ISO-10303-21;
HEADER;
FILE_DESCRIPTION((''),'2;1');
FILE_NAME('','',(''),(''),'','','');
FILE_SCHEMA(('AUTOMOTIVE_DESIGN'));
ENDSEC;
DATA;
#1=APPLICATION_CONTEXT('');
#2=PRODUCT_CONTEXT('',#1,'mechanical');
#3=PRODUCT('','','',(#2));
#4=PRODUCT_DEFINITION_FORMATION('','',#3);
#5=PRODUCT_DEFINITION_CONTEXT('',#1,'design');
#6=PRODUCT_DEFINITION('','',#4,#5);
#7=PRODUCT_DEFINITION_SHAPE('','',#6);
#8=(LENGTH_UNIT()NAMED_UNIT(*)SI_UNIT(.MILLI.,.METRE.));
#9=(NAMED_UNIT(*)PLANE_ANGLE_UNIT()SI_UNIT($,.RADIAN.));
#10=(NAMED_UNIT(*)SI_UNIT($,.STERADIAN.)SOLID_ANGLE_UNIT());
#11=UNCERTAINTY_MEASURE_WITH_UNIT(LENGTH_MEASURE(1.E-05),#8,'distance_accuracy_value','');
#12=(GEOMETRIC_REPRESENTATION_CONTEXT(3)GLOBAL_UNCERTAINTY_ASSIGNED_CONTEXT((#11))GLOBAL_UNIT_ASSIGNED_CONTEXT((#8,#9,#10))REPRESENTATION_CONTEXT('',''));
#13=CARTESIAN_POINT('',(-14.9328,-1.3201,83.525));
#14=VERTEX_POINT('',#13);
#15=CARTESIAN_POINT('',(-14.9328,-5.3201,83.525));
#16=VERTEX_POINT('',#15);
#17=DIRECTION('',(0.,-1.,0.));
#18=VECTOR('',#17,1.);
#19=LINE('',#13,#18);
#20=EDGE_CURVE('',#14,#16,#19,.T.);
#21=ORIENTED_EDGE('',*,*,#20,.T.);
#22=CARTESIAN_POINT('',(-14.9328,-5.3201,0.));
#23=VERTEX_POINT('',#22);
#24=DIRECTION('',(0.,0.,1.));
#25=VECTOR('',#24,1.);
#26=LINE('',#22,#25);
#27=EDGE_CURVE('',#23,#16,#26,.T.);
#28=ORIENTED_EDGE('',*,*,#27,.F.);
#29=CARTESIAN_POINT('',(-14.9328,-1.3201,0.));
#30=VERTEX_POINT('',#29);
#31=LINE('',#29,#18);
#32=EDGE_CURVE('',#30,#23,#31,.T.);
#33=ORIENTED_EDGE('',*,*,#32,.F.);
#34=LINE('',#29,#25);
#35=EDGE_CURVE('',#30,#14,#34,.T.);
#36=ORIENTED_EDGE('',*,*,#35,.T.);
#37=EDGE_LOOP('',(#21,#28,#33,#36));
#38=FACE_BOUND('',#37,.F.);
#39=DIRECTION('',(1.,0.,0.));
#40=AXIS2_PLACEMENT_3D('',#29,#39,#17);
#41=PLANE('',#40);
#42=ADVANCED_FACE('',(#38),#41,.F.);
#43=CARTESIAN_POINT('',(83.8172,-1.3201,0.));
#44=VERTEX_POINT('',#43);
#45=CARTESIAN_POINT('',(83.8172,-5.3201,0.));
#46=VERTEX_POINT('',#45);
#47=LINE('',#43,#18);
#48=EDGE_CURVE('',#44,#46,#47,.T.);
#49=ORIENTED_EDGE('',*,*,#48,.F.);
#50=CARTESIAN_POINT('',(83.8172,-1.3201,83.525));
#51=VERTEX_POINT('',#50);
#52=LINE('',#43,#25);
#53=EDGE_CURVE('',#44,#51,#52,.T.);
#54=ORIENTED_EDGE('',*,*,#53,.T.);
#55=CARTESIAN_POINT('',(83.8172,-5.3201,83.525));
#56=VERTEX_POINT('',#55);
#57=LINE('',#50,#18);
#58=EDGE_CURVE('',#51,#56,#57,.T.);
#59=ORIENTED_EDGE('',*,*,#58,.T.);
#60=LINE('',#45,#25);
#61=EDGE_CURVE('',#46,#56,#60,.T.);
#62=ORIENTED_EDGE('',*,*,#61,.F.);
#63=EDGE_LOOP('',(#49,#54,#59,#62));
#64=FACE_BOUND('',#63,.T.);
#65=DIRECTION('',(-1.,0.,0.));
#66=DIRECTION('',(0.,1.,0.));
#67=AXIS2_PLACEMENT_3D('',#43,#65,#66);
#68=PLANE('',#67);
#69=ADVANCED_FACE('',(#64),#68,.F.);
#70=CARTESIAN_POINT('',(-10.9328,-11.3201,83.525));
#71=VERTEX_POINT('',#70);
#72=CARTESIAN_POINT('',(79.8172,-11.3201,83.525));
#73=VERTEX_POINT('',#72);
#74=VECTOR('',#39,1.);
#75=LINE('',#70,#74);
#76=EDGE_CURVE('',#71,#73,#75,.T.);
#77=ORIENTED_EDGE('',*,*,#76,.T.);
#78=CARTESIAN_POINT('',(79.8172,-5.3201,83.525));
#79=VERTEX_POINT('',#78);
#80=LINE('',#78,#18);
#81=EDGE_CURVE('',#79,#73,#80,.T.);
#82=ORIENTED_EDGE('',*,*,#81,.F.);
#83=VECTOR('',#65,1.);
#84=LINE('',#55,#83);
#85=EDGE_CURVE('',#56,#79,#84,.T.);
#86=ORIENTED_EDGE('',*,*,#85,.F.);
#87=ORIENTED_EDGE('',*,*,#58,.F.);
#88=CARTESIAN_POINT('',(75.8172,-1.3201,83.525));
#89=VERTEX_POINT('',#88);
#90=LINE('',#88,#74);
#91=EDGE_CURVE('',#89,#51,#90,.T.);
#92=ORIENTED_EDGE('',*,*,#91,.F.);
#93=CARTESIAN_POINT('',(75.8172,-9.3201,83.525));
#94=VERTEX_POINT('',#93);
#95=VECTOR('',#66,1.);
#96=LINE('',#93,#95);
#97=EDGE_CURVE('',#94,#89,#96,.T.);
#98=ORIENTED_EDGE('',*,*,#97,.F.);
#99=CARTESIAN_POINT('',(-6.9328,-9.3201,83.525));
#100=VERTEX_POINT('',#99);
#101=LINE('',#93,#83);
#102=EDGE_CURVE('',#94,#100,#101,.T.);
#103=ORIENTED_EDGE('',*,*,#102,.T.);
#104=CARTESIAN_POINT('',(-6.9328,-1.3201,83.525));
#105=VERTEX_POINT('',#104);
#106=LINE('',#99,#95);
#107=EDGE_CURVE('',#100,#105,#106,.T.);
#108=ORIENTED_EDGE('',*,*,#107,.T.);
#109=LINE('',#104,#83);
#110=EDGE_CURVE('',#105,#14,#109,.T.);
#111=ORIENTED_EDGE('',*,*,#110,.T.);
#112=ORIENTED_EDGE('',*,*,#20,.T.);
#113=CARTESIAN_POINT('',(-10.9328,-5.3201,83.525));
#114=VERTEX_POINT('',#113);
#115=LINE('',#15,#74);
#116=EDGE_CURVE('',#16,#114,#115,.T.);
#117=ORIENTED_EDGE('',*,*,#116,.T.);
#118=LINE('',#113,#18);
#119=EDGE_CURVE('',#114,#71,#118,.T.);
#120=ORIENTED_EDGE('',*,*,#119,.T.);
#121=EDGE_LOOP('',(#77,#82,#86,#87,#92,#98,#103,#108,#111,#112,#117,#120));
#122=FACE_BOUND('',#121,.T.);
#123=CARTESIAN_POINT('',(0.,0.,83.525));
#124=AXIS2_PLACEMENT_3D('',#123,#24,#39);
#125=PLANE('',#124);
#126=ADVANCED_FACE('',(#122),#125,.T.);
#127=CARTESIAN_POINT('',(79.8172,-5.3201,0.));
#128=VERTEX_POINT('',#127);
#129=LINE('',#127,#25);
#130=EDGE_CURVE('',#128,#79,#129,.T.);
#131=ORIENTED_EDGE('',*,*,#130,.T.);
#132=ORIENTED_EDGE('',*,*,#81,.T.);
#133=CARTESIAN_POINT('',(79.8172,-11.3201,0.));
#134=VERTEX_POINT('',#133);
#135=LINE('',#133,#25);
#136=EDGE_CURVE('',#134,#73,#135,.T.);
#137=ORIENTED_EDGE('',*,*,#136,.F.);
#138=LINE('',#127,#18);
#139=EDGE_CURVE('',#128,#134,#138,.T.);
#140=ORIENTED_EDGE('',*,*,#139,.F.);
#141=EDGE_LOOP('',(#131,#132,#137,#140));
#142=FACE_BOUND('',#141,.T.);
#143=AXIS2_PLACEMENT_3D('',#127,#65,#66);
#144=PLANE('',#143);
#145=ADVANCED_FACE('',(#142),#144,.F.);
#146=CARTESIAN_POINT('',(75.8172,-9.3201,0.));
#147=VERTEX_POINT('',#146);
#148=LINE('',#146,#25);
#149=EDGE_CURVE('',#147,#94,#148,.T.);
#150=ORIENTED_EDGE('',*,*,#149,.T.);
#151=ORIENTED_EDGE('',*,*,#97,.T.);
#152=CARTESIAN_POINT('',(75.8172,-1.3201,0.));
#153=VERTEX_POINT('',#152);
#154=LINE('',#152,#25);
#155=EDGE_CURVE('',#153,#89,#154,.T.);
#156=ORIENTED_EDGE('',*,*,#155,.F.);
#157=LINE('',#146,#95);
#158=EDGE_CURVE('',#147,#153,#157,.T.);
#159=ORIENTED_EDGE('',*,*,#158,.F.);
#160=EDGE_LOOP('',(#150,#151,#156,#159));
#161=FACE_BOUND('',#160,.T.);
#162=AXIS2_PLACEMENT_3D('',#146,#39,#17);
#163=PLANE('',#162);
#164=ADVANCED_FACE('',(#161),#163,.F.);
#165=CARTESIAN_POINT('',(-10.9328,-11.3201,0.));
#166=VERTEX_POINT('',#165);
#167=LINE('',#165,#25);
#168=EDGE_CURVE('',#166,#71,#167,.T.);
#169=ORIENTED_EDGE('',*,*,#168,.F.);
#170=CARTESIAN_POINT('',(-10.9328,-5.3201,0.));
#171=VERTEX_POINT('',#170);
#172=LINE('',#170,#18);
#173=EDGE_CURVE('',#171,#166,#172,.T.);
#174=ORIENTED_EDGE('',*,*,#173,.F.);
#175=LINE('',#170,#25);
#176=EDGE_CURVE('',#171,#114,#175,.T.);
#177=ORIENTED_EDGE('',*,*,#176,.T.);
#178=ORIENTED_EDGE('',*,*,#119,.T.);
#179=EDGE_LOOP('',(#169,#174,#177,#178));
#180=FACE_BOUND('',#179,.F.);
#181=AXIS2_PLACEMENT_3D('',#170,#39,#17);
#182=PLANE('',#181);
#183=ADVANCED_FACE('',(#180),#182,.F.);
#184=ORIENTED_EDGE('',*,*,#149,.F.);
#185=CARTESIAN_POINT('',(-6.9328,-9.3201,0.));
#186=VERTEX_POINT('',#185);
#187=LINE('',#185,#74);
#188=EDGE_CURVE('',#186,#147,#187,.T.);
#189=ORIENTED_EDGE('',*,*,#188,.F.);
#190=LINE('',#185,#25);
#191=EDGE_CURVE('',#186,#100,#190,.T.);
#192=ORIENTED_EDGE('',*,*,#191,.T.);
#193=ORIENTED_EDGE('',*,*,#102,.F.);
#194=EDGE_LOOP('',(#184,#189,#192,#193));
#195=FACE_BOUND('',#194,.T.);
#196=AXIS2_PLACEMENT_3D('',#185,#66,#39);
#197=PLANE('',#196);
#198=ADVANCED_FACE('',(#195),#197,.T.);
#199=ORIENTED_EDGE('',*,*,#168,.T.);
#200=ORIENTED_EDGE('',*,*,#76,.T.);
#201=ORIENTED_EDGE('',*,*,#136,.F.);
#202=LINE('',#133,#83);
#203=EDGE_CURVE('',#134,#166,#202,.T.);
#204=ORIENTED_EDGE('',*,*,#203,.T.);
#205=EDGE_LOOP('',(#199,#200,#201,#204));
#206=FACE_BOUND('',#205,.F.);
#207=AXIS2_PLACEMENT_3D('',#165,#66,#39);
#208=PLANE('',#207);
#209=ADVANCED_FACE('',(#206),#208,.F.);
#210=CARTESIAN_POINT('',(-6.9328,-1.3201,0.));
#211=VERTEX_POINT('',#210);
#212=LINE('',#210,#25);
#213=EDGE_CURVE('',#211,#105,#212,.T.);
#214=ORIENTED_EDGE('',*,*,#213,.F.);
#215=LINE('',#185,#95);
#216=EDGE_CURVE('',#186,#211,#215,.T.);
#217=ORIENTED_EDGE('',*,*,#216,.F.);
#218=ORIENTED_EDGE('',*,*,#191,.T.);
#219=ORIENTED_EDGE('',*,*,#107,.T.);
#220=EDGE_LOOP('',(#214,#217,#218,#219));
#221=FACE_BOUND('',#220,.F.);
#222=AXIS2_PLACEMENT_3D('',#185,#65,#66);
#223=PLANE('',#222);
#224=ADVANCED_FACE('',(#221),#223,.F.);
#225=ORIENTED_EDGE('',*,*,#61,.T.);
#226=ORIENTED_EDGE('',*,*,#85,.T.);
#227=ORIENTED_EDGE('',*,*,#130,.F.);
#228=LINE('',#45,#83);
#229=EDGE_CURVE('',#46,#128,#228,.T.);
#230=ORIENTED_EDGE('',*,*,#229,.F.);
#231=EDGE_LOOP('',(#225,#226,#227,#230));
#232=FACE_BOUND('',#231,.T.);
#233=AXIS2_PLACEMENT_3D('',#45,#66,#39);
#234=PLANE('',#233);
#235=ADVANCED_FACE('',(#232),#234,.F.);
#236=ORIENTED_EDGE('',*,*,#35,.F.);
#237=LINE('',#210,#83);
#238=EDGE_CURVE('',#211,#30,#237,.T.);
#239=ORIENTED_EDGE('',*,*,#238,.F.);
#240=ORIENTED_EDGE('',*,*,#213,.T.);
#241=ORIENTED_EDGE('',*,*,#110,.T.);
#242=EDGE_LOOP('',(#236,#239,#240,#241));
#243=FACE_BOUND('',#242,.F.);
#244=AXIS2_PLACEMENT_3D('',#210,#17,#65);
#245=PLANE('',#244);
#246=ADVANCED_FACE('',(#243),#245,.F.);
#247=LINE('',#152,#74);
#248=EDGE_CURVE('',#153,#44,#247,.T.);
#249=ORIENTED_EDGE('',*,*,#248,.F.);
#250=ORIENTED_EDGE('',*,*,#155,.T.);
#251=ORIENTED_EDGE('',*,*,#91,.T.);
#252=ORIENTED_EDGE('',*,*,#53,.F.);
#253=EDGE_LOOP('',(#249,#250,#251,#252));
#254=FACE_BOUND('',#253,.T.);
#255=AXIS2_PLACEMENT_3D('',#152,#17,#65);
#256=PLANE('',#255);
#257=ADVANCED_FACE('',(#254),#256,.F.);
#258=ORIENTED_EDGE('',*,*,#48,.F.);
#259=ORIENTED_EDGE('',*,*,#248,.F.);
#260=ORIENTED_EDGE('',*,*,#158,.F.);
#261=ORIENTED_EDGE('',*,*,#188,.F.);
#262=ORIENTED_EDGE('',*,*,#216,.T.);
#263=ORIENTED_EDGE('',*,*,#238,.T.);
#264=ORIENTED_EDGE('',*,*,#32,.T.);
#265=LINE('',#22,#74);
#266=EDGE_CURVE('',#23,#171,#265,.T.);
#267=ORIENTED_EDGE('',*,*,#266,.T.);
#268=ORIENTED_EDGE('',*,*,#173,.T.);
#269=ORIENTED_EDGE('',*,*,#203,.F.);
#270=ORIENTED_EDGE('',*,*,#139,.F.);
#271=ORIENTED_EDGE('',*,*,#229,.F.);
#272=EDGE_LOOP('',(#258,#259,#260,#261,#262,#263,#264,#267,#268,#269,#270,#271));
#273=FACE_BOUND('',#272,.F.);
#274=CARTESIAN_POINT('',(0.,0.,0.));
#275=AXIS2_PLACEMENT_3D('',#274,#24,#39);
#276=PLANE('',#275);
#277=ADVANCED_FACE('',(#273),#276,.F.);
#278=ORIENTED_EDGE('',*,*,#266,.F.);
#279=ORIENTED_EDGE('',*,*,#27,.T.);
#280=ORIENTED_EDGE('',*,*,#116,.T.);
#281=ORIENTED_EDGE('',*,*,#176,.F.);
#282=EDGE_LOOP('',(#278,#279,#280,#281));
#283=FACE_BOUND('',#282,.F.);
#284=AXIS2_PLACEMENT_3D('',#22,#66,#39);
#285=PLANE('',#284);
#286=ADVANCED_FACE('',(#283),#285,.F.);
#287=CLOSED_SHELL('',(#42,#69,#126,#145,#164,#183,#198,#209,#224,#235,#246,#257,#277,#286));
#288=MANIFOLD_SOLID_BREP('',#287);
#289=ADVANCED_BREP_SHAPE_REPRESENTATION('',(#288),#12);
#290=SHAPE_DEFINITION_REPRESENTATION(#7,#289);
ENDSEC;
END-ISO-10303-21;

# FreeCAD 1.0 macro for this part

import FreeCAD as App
import Part
import Sketcher
from FreeCAD import Vector


def add_polygon(sketch, points):
    """Adds a closed chain of lines whose ends are joined by coincident constraints."""
    first, n = sketch.GeometryCount, len(points)
    for a, b in zip(points, points[1:] + points[:1]):
        sketch.addGeometry(Part.LineSegment(App.Vector(*a, 0), App.Vector(*b, 0)), False)
    for i in range(n):
        sketch.addConstraint(Sketcher.Constraint("Coincident", first + i, 2, first + (i + 1) % n, 1))

doc = App.newDocument("Part")
body = doc.addObject("PartDesign::Body", "Body")

# Sketch on XY plane
sketch1 = body.newObject("Sketcher::SketchObject", "Sketch")
sketch1.AttachmentSupport = (doc.getObject("XY_Plane"), [""])
sketch1.MapMode = "FlatFace"
add_polygon(sketch1, [(-14.9, -1.3), (-14.9, -5.3), (-10.9, -5.3), (-10.9, -11.3), (34.4, -11.3), (34.4, -9.3), (-6.9, -9.3), (-6.9, -1.3)])  # lines 0-7
sketch1.addConstraint(Sketcher.Constraint("Vertical", 0))
sketch1.addConstraint(Sketcher.Constraint("Horizontal", 1))
sketch1.addConstraint(Sketcher.Constraint("Vertical", 2))
sketch1.addConstraint(Sketcher.Constraint("Horizontal", 3))
sketch1.addConstraint(Sketcher.Constraint("Vertical", 4))
sketch1.addConstraint(Sketcher.Constraint("Horizontal", 5))
sketch1.addConstraint(Sketcher.Constraint("Vertical", 6))
sketch1.addConstraint(Sketcher.Constraint("Horizontal", 7))
sketch1.addConstraint(Sketcher.Constraint("Equal", 1, 0))
sketch1.addConstraint(Sketcher.Constraint("Equal", 7, 6))
sketch1.addConstraint(Sketcher.Constraint("DistanceX", 1, 1, 1, 2, 4.0))
sketch1.addConstraint(Sketcher.Constraint("DistanceX", 7, 2, 7, 1, 8.0))
sketch1.addConstraint(Sketcher.Constraint("DistanceY", 4, 1, 4, 2, 2.0))
sketch1.addConstraint(Sketcher.Constraint("DistanceX", 3, 1, 3, 2, 45.375))
sketch1.addConstraint(Sketcher.Constraint("DistanceY", 0, 2, -1, 1, 5.32))
sketch1.addConstraint(Sketcher.Constraint("DistanceX", 0, 2, -1, 1, 14.9328))
pad1 = body.newObject("PartDesign::Pad", "Pad")
pad1.Profile = sketch1
pad1.Length = 83.525
doc.recompute()

datumplane = body.newObject("PartDesign::Plane", "DatumPlane")
datumplane.AttachmentSupport = (doc.getObject("YZ_Plane"), [""])
datumplane.MapMode = "FlatFace"
datumplane.AttachmentOffset = App.Placement(Vector(0, 0, 34.4422), App.Rotation())
mirrored = body.newObject("PartDesign::Mirrored", "Mirrored")
mirrored.Originals = [pad1]
mirrored.MirrorPlane = (datumplane, [""])
body.Tip = mirrored

doc.recompute()
